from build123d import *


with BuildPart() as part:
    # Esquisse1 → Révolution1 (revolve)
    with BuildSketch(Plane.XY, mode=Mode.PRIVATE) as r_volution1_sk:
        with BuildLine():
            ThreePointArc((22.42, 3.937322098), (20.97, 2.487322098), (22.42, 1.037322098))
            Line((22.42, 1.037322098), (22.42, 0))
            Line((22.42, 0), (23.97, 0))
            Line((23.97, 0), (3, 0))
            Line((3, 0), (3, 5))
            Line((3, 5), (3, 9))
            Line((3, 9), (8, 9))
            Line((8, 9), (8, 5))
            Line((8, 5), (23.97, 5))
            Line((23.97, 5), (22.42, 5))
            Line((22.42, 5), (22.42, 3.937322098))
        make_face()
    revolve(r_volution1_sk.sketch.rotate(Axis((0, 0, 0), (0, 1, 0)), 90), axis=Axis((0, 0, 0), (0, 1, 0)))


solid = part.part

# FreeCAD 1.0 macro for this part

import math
import FreeCAD as App
import Part
import Sketcher
Q = App.Units.Quantity

doc = App.newDocument("Part")
params = doc.addObject("Spreadsheet::Sheet", "Params")
for row, (alias, value) in enumerate([
    ("sketch1_width", "5 mm"),
    ("sketch1_height", "4 mm"),
    ("sketch1_height2", "9 mm"),
    ("sketch1_radius", "1.45 mm"),
    ("sketch1_width2", "14.42 mm"),
    ("revolution_angle", "360 deg"),
], start=1):
    params.set(f"A{row}", alias)
    params.set(f"B{row}", "=" + value)
    params.setAlias(f"B{row}", alias)

body = doc.addObject("PartDesign::Body", "Body")

# Sketch on XY plane
sketch1 = body.newObject("Sketcher::SketchObject", "Sketch")
sketch1.AttachmentSupport = (doc.getObject("XY_Plane"), [""])
sketch1.MapMode = "FlatFace"
sketch1.addGeometry([
    Part.ArcOfCircle(Part.Circle(App.Vector(22.4, 2.5, 0), App.Vector(0, 0, 1), 1.4), math.radians(90), math.radians(270)),  # 0
    Part.LineSegment(App.Vector(22.4, 3.9, 0), App.Vector(22.4, 5, 0)),  # 1
    Part.LineSegment(App.Vector(22.4, 5, 0), App.Vector(8, 5, 0)),  # 2
    Part.LineSegment(App.Vector(8, 5, 0), App.Vector(8, 9, 0)),  # 3
    Part.LineSegment(App.Vector(8, 9, 0), App.Vector(3, 9, 0)),  # 4
    Part.LineSegment(App.Vector(3, 9, 0), App.Vector(3, 0, 0)),  # 5
    Part.LineSegment(App.Vector(3, 0, 0), App.Vector(22.4, 0, 0)),  # 6
    Part.LineSegment(App.Vector(22.4, 0, 0), App.Vector(22.4, 1, 0)),  # 7
], False)
sketch1.addConstraint([
    Sketcher.Constraint("Coincident", 0, 1, 1, 1),
    Sketcher.Constraint("Coincident", 1, 2, 2, 1),
    Sketcher.Constraint("Coincident", 2, 2, 3, 1),
    Sketcher.Constraint("Coincident", 3, 2, 4, 1),
    Sketcher.Constraint("Coincident", 4, 2, 5, 1),
    Sketcher.Constraint("Coincident", 5, 2, 6, 1),
    Sketcher.Constraint("Coincident", 6, 2, 7, 1),
    Sketcher.Constraint("Coincident", 7, 2, 0, 2),
    Sketcher.Constraint("Vertical", 1),
    Sketcher.Constraint("Horizontal", 2),
    Sketcher.Constraint("Vertical", 3),
    Sketcher.Constraint("Horizontal", 4),
    Sketcher.Constraint("Vertical", 5),
    Sketcher.Constraint("Horizontal", 6),
    Sketcher.Constraint("Vertical", 7),
    Sketcher.Constraint("PointOnObject", 5, 2, -1),
    Sketcher.Constraint("Vertical", 1, 2, 6, 2),
    Sketcher.Constraint("DistanceX", 4, 2, 4, 1, Q("5 mm")),
    Sketcher.Constraint("DistanceY", 3, 1, 3, 2, Q("4 mm")),
    Sketcher.Constraint("DistanceY", 5, 2, 5, 1, Q("9 mm")),
    Sketcher.Constraint("Radius", 0, Q("1.45 mm")),
    Sketcher.Constraint("DistanceX", -1, 1, 2, 2, Q("8 mm")),
    Sketcher.Constraint("DistanceX", 2, 2, 2, 1, Q("14.42 mm")),
    Sketcher.Constraint("DistanceX", -1, 1, 0, 3, Q("22.42 mm")),
    Sketcher.Constraint("DistanceY", 1, 1, 1, 2, Q("1.062678 mm")),
])
sketch1.setExpression("Constraints[17]", "Params.sketch1_width")
sketch1.setExpression("Constraints[18]", "Params.sketch1_height")
sketch1.setExpression("Constraints[19]", "Params.sketch1_height2")
sketch1.setExpression("Constraints[20]", "Params.sketch1_radius")
sketch1.setExpression("Constraints[22]", "Params.sketch1_width2")
revolution = body.newObject("PartDesign::Revolution", "Revolution")
revolution.Profile = sketch1
revolution.ReferenceAxis = (sketch1, ["V_Axis"])
revolution.setExpression("Angle", "Params.revolution_angle")

doc.recompute()
